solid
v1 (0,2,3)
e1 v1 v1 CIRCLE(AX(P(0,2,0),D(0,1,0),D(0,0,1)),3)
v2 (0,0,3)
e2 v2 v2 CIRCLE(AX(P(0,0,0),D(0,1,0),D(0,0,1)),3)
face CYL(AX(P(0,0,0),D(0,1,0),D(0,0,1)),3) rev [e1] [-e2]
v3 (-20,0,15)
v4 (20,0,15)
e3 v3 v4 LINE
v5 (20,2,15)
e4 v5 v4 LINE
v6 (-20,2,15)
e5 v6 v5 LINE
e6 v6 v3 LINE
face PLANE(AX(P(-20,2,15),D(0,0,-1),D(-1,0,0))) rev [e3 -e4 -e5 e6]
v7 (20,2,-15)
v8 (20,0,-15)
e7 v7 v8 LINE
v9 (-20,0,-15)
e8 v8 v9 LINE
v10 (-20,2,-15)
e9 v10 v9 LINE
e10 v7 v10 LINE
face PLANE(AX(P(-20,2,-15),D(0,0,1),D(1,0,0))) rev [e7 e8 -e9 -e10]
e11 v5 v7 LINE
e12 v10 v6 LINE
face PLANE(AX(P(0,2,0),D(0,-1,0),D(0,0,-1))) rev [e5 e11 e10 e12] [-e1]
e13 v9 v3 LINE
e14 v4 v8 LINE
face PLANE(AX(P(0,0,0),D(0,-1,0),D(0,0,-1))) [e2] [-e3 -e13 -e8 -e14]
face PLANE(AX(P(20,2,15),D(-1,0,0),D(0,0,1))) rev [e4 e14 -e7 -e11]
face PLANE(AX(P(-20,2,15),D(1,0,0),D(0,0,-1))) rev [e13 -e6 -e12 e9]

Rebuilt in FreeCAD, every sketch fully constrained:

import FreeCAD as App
import Part
import Sketcher
from FreeCAD import Vector
Q = App.Units.Quantity


def add_polygon(sketch, points):
    """Adds a closed chain of lines whose ends are joined by coincident constraints."""
    first, n = sketch.GeometryCount, len(points)
    for a, b in zip(points, points[1:] + points[:1]):
        sketch.addGeometry(Part.LineSegment(App.Vector(*a, 0), App.Vector(*b, 0)), False)
    for i in range(n):
        sketch.addConstraint(Sketcher.Constraint("Coincident", first + i, 2, first + (i + 1) % n, 1))

doc = App.newDocument("Part")
body = doc.addObject("PartDesign::Body", "Body")

sketch1 = body.newObject("Sketcher::SketchObject", "Sketch")
sketch1.AttachmentSupport = (doc.getObject("XZ_Plane"), [""])
sketch1.MapMode = "FlatFace"
add_polygon(sketch1, [(-20, -15), (-20, 15), (20, 15), (20, -15)])
sketch1.addConstraint([
    Sketcher.Constraint("Vertical", 0),
    Sketcher.Constraint("Horizontal", 1),
    Sketcher.Constraint("Vertical", 2),
    Sketcher.Constraint("Horizontal", 3),
    Sketcher.Constraint("Symmetric", 0, 2, 2, 2, -1, 1),
    Sketcher.Constraint("DistanceX", 1, 1, 1, 2, Q("40 mm")),
    Sketcher.Constraint("DistanceY", 0, 1, 0, 2, Q("30 mm")),
])
pad1 = body.newObject("PartDesign::Pad", "Pad")
pad1.Profile = sketch1
pad1.Length = 2
pad1.Reversed = True

sketch2 = body.newObject("Sketcher::SketchObject", "Sketch001")
sketch2.AttachmentSupport = (doc.getObject("XZ_Plane"), [""])
sketch2.MapMode = "FlatFace"
sketch2.AttachmentOffset = App.Placement(Vector(0, 0, -2), App.Rotation())
sketch2.addGeometry(Part.Circle(Vector(0, 0, 0), Vector(0, 0, 1), 3), False)
sketch2.addConstraint([
    Sketcher.Constraint("Coincident", 0, 3, -1, 1),
    Sketcher.Constraint("Diameter", 0, Q("6 mm")),
])
pocket1 = body.newObject("PartDesign::Pocket", "Pocket")
pocket1.Profile = sketch2
pocket1.Length = 2
pocket1.Reversed = True

doc.recompute()
